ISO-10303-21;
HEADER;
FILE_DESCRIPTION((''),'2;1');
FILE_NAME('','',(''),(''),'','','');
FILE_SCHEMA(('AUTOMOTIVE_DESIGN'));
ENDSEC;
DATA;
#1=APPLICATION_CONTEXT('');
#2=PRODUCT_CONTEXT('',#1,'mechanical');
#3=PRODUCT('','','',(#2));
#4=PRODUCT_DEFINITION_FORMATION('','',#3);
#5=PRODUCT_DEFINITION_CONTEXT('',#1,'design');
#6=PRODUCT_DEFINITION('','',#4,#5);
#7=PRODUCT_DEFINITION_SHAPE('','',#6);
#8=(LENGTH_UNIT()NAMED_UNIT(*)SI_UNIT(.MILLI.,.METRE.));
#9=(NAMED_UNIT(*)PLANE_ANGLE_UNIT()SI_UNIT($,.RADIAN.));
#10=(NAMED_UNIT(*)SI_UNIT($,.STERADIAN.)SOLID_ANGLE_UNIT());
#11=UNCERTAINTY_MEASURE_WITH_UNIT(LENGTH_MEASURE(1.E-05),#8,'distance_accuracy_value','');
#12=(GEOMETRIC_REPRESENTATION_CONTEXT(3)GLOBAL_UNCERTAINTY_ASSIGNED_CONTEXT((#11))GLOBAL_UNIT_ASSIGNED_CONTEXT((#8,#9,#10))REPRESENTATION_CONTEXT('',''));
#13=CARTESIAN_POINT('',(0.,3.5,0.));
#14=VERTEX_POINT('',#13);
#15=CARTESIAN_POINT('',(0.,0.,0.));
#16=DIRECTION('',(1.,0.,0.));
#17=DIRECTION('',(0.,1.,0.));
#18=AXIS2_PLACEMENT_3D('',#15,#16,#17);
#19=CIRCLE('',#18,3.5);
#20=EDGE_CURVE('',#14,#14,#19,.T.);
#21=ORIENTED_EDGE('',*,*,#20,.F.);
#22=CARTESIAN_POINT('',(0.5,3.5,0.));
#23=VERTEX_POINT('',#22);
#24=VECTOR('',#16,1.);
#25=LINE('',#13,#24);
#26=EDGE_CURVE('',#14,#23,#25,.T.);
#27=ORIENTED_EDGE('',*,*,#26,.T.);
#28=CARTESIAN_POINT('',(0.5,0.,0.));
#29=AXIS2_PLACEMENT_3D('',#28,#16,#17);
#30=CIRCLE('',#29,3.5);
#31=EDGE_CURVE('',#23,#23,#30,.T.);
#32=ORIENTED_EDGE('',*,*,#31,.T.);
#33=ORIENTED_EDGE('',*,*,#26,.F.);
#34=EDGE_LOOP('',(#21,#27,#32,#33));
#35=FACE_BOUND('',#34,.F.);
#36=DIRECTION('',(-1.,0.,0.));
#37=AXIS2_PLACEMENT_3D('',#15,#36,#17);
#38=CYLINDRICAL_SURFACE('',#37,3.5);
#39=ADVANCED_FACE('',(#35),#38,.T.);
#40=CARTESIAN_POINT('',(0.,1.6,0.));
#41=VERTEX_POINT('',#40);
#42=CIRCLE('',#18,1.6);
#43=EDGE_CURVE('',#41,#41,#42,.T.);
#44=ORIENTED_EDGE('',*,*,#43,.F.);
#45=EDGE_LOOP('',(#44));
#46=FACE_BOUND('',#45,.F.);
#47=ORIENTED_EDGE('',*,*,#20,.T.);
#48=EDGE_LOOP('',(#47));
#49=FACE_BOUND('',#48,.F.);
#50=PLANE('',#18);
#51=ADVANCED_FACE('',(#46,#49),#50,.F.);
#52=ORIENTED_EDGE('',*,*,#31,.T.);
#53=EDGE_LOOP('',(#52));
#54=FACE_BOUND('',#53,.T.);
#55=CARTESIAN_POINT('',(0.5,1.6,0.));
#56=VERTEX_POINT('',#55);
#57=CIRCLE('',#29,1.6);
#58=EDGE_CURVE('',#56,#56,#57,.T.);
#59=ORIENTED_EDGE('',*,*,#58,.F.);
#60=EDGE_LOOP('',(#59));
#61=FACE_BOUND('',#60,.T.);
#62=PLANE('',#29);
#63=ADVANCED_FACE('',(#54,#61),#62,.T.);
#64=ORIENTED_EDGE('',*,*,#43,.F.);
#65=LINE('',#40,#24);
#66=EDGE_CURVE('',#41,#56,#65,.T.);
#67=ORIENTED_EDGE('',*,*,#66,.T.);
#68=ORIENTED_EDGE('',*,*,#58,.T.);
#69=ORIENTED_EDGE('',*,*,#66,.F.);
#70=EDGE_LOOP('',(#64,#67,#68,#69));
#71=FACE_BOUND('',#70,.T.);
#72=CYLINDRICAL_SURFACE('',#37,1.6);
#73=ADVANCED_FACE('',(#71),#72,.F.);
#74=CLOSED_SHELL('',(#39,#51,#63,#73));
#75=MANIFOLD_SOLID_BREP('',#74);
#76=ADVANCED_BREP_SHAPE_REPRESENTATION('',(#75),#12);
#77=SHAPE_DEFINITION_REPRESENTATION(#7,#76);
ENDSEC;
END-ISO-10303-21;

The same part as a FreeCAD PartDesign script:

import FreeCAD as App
import Part
import Sketcher
from FreeCAD import Vector
Q = App.Units.Quantity

doc = App.newDocument("Part")
body = doc.addObject("PartDesign::Body", "Body")

sketch1 = body.newObject("Sketcher::SketchObject", "Sketch")
sketch1.AttachmentSupport = (doc.getObject("YZ_Plane"), [""])
sketch1.MapMode = "FlatFace"
sketch1.addGeometry(Part.Circle(Vector(0, 0, 0), Vector(0, 0, 1), 3.5), False)
sketch1.addGeometry(Part.Circle(Vector(0, 0, 0), Vector(0, 0, 1), 1.6), False)
sketch1.addConstraint(Sketcher.Constraint("Coincident", 0, 3, -1, 1))
sketch1.addConstraint(Sketcher.Constraint("Coincident", 1, 3, -1, 1))
sketch1.addConstraint(Sketcher.Constraint("Diameter", 0, Q("7 mm")))
sketch1.addConstraint(Sketcher.Constraint("Diameter", 1, Q("3.2 mm")))
pad1 = body.newObject("PartDesign::Pad", "Pad")
pad1.Profile = sketch1
pad1.Length = 0.5

doc.recompute()
